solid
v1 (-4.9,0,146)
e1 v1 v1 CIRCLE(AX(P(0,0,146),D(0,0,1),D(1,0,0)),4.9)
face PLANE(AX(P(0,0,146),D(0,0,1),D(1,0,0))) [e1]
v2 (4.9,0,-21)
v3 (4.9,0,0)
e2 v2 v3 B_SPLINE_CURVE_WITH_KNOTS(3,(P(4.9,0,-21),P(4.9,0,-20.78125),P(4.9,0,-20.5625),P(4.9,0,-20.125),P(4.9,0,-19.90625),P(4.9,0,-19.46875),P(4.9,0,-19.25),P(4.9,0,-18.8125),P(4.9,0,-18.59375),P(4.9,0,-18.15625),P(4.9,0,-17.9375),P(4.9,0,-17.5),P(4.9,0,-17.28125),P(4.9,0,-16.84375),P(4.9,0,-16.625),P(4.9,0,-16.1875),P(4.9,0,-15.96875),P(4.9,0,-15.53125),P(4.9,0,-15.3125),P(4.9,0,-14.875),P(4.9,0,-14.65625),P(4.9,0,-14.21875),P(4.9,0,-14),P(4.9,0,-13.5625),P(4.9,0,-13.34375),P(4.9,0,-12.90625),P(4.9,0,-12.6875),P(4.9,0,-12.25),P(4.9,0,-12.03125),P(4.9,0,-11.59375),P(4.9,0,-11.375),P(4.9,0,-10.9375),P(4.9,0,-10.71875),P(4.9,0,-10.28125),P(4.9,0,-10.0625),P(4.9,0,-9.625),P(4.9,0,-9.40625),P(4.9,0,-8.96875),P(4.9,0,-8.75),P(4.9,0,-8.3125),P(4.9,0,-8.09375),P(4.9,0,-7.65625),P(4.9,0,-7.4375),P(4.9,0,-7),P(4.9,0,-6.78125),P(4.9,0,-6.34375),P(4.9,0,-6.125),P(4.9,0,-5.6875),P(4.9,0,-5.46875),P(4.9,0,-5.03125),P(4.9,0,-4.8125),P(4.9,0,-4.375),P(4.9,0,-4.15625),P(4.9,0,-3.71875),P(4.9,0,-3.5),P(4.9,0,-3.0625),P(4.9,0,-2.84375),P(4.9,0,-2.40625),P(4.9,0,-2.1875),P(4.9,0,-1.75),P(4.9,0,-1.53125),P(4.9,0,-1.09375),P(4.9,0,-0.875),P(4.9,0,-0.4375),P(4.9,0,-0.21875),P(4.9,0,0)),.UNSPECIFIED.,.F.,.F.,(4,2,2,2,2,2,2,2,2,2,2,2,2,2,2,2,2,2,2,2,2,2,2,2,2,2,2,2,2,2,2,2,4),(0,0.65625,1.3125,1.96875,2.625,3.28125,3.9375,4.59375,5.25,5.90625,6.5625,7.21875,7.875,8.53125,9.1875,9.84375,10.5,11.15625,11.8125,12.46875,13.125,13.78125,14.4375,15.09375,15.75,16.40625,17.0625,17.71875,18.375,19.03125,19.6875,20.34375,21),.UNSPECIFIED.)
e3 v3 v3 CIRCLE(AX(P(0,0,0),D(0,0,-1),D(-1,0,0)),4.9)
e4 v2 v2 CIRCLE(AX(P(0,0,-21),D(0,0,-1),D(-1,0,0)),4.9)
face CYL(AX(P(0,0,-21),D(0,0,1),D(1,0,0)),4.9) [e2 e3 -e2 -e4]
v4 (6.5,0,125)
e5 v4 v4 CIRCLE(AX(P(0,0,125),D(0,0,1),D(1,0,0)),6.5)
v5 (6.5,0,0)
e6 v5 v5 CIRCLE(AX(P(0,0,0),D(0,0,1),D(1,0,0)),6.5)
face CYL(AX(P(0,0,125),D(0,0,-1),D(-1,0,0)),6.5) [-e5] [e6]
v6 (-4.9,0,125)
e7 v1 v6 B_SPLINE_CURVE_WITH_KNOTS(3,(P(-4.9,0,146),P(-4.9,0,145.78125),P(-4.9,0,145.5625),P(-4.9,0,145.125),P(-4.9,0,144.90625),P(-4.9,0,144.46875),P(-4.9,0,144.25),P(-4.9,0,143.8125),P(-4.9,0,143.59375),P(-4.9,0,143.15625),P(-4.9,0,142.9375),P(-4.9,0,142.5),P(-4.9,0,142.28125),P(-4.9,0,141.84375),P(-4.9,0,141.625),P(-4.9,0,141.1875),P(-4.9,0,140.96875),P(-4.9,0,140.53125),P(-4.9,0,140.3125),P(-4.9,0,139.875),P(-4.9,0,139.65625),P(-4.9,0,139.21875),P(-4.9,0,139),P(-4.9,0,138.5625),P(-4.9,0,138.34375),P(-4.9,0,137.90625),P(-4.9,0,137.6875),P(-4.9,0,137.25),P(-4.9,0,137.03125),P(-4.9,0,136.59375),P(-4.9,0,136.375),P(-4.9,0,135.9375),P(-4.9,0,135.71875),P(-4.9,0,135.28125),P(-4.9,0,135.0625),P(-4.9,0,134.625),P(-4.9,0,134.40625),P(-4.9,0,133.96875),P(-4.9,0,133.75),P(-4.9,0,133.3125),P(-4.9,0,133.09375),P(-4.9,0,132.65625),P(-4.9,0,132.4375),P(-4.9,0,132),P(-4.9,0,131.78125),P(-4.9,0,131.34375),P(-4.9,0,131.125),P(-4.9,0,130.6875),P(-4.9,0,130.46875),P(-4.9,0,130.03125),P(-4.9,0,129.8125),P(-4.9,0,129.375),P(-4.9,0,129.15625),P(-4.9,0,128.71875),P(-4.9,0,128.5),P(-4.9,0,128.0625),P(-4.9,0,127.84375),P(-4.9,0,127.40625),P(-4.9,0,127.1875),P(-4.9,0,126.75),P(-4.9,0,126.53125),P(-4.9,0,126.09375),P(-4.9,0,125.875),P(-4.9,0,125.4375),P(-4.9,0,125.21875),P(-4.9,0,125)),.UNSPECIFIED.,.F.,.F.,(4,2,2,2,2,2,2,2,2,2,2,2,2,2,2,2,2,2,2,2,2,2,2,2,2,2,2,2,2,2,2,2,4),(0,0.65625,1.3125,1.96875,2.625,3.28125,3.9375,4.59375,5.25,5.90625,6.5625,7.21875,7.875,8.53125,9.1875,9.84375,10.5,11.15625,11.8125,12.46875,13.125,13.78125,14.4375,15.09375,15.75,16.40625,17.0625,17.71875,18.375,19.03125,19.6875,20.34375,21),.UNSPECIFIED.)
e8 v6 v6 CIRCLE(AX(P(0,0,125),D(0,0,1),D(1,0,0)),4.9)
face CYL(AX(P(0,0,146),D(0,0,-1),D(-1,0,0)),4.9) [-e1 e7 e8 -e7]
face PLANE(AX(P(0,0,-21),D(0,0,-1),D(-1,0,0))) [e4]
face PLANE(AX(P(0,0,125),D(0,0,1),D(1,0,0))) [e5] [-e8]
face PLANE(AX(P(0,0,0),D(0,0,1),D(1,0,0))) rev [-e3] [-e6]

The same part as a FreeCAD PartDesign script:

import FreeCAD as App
import Part
import Sketcher
from FreeCAD import Vector

doc = App.newDocument("Part")
body = doc.addObject("PartDesign::Body", "Body")

sketch1 = body.newObject("Sketcher::SketchObject", "Sketch")
sketch1.AttachmentSupport = (doc.getObject("XY_Plane"), [""])
sketch1.MapMode = "FlatFace"
sketch1.addGeometry(Part.Circle(Vector(0, 0, 0), Vector(0, 0, 1), 6), False)
sketch1.addConstraint([
    Sketcher.Constraint("Coincident", 0, 3, -1, 1),
    Sketcher.Constraint("Diameter", 0, 13.0),
])
pad1 = body.newObject("PartDesign::Pad", "Pad")
pad1.Profile = sketch1
pad1.Length = 125

sketch2 = body.newObject("Sketcher::SketchObject", "Sketch001")
sketch2.AttachmentSupport = (doc.getObject("XY_Plane"), [""])
sketch2.MapMode = "FlatFace"
sketch2.AttachmentOffset = App.Placement(Vector(0, 0, 125), App.Rotation())
sketch2.addGeometry(Part.Circle(Vector(0, 0, 0), Vector(0, 0, 1), 4.9), False)
sketch2.addConstraint([
    Sketcher.Constraint("Coincident", 0, 3, -1, 1),
    Sketcher.Constraint("Diameter", 0, 9.8),
])
pad2 = body.newObject("PartDesign::Pad", "Pad001")
pad2.Profile = sketch2
pad2.Length = 21

sketch3 = body.newObject("Sketcher::SketchObject", "Sketch002")
sketch3.AttachmentSupport = (doc.getObject("XY_Plane"), [""])
sketch3.MapMode = "FlatFace"
sketch3.AttachmentOffset = App.Placement(Vector(0, 0, -21), App.Rotation())
sketch3.addGeometry(Part.Circle(Vector(0, 0, 0), Vector(0, 0, 1), 4.9), False)
sketch3.addConstraint([
    Sketcher.Constraint("Coincident", 0, 3, -1, 1),
    Sketcher.Constraint("Diameter", 0, 9.8),
])
pad3 = body.newObject("PartDesign::Pad", "Pad002")
pad3.Profile = sketch3
pad3.Length = 21

doc.recompute()
